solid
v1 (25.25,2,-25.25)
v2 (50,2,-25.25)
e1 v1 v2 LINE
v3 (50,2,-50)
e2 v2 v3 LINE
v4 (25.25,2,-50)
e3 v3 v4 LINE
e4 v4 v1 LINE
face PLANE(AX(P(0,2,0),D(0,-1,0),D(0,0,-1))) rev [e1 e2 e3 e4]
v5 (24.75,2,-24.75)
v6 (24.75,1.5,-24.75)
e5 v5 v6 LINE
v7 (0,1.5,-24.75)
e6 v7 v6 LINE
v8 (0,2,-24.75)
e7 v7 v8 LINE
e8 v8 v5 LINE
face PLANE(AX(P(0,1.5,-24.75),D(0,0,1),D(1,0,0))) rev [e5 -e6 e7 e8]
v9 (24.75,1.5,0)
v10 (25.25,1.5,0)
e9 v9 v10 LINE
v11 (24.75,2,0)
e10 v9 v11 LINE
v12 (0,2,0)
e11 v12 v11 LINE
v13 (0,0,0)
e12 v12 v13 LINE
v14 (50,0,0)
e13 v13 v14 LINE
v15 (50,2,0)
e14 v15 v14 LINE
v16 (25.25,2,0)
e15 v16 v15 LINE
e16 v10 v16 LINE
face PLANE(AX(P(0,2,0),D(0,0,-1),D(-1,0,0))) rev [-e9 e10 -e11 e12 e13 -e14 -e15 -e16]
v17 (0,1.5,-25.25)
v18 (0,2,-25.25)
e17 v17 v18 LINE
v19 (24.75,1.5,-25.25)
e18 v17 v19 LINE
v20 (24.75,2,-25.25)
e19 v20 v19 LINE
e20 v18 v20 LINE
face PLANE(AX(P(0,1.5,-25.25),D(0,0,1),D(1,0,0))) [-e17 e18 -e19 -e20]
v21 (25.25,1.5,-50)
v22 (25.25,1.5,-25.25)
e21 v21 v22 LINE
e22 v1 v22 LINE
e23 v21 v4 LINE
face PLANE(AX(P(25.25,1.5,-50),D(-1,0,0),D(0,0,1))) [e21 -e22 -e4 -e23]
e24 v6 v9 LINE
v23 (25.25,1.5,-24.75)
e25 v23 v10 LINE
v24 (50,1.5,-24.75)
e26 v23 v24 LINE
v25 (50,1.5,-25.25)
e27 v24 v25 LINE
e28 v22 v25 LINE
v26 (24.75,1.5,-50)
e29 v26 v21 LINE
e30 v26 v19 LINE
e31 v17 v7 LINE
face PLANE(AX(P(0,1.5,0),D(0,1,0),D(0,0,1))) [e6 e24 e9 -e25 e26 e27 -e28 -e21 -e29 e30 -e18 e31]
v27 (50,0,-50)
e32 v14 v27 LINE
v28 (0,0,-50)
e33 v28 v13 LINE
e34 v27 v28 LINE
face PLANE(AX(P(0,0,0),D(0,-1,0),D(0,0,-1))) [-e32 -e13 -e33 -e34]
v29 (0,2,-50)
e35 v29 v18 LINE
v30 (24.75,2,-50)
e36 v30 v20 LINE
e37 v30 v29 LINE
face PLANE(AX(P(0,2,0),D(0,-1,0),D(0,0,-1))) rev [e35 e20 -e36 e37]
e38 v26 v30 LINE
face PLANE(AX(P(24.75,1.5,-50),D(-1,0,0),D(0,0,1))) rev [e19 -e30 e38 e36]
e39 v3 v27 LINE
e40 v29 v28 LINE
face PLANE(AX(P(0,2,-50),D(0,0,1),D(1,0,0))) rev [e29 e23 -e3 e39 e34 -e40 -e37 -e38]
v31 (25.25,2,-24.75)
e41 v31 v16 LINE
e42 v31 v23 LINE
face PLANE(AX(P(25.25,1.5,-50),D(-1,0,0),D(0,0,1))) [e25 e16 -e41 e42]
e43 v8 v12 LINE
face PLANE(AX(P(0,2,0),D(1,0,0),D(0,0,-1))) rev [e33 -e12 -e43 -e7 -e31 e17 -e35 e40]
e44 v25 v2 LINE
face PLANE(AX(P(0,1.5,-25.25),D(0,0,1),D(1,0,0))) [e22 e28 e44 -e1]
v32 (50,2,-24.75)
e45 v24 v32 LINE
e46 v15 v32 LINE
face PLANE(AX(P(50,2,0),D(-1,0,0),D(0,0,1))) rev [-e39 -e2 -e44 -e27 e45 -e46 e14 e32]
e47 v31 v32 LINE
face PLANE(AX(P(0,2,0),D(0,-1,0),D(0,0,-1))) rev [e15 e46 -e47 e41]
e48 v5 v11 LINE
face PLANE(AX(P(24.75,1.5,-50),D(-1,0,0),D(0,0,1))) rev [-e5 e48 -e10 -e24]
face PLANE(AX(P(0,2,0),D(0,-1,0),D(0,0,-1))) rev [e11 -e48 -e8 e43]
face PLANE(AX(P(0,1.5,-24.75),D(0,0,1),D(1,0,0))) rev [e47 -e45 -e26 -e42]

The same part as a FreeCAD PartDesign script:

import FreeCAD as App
import Part
import Sketcher
from FreeCAD import Vector

doc = App.newDocument("Part")
body = doc.addObject("PartDesign::Body", "Body")

sketch1 = doc.addObject("Sketcher::SketchObject", "Sketch")
body.addObject(sketch1)
sketch1.AttachmentSupport = (doc.XZ_Plane, [""])
sketch1.MapMode = "FlatFace"
sketch1.addGeometry(Part.LineSegment(Vector(0, -50, 0), Vector(0, 0, 0)), False)
sketch1.addGeometry(Part.LineSegment(Vector(0, 0, 0), Vector(50, 0, 0)), False)
sketch1.addGeometry(Part.LineSegment(Vector(50, 0, 0), Vector(50, -50, 0)), False)
sketch1.addGeometry(Part.LineSegment(Vector(50, -50, 0), Vector(0, -50, 0)), False)
sketch1.addConstraint(Sketcher.Constraint("Coincident", 0, 2, 1, 1))
sketch1.addConstraint(Sketcher.Constraint("Coincident", 1, 2, 2, 1))
sketch1.addConstraint(Sketcher.Constraint("Coincident", 2, 2, 3, 1))
sketch1.addConstraint(Sketcher.Constraint("Coincident", 3, 2, 0, 1))
sketch1.addConstraint(Sketcher.Constraint("Vertical", 0))
sketch1.addConstraint(Sketcher.Constraint("Horizontal", 1))
sketch1.addConstraint(Sketcher.Constraint("Vertical", 2))
sketch1.addConstraint(Sketcher.Constraint("Horizontal", 3))
sketch1.addConstraint(Sketcher.Constraint("Coincident", 0, 2, -1, 1))
sketch1.addConstraint(Sketcher.Constraint("Equal", 3, 0))
sketch1.addConstraint(Sketcher.Constraint("DistanceX", 1, 1, 1, 2, 50.0))
pad1 = doc.addObject("PartDesign::Pad", "Pad")
body.addObject(pad1)
pad1.Profile = sketch1
pad1.Length = 2
pad1.Reversed = True

sketch2 = doc.addObject("Sketcher::SketchObject", "Sketch001")
body.addObject(sketch2)
sketch2.AttachmentSupport = (doc.XZ_Plane, [""])
sketch2.MapMode = "FlatFace"
sketch2.AttachmentOffset = App.Placement(Vector(0, 0, -2), App.Rotation())
sketch2.addGeometry(Part.LineSegment(Vector(24.8, -24.8, 0), Vector(24.8, 0, 0)), False)
sketch2.addGeometry(Part.LineSegment(Vector(24.8, 0, 0), Vector(25.2, 0, 0)), False)
sketch2.addGeometry(Part.LineSegment(Vector(25.2, 0, 0), Vector(25.2, -24.8, 0)), False)
sketch2.addGeometry(Part.LineSegment(Vector(25.2, -24.8, 0), Vector(50, -24.8, 0)), False)
sketch2.addGeometry(Part.LineSegment(Vector(50, -24.8, 0), Vector(50, -25.2, 0)), False)
sketch2.addGeometry(Part.LineSegment(Vector(50, -25.2, 0), Vector(25.2, -25.2, 0)), False)
sketch2.addGeometry(Part.LineSegment(Vector(25.2, -25.2, 0), Vector(25.2, -50, 0)), False)
sketch2.addGeometry(Part.LineSegment(Vector(25.2, -50, 0), Vector(24.8, -50, 0)), False)
sketch2.addGeometry(Part.LineSegment(Vector(24.8, -50, 0), Vector(24.8, -25.2, 0)), False)
sketch2.addGeometry(Part.LineSegment(Vector(24.8, -25.2, 0), Vector(0, -25.2, 0)), False)
sketch2.addGeometry(Part.LineSegment(Vector(0, -25.2, 0), Vector(0, -24.8, 0)), False)
sketch2.addGeometry(Part.LineSegment(Vector(0, -24.8, 0), Vector(24.8, -24.8, 0)), False)
sketch2.addConstraint(Sketcher.Constraint("Coincident", 0, 2, 1, 1))
sketch2.addConstraint(Sketcher.Constraint("Coincident", 1, 2, 2, 1))
sketch2.addConstraint(Sketcher.Constraint("Coincident", 2, 2, 3, 1))
sketch2.addConstraint(Sketcher.Constraint("Coincident", 3, 2, 4, 1))
sketch2.addConstraint(Sketcher.Constraint("Coincident", 4, 2, 5, 1))
sketch2.addConstraint(Sketcher.Constraint("Coincident", 5, 2, 6, 1))
sketch2.addConstraint(Sketcher.Constraint("Coincident", 6, 2, 7, 1))
sketch2.addConstraint(Sketcher.Constraint("Coincident", 7, 2, 8, 1))
sketch2.addConstraint(Sketcher.Constraint("Coincident", 8, 2, 9, 1))
sketch2.addConstraint(Sketcher.Constraint("Coincident", 9, 2, 10, 1))
sketch2.addConstraint(Sketcher.Constraint("Coincident", 10, 2, 11, 1))
sketch2.addConstraint(Sketcher.Constraint("Coincident", 11, 2, 0, 1))
sketch2.addConstraint(Sketcher.Constraint("Vertical", 0))
sketch2.addConstraint(Sketcher.Constraint("Horizontal", 1))
sketch2.addConstraint(Sketcher.Constraint("Vertical", 2))
sketch2.addConstraint(Sketcher.Constraint("Horizontal", 3))
sketch2.addConstraint(Sketcher.Constraint("Vertical", 4))
sketch2.addConstraint(Sketcher.Constraint("Horizontal", 5))
sketch2.addConstraint(Sketcher.Constraint("Vertical", 6))
sketch2.addConstraint(Sketcher.Constraint("Horizontal", 7))
sketch2.addConstraint(Sketcher.Constraint("Vertical", 8))
sketch2.addConstraint(Sketcher.Constraint("Horizontal", 9))
sketch2.addConstraint(Sketcher.Constraint("Vertical", 10))
sketch2.addConstraint(Sketcher.Constraint("Horizontal", 11))
sketch2.addConstraint(Sketcher.Constraint("PointOnObject", 0, 2, -1))
sketch2.addConstraint(Sketcher.Constraint("PointOnObject", 9, 2, -2))
sketch2.addConstraint(Sketcher.Constraint("Horizontal", 5, 2, 8, 2))
sketch2.addConstraint(Sketcher.Constraint("Horizontal", 3, 2, 10, 2))
sketch2.addConstraint(Sketcher.Constraint("Vertical", 2, 2, 5, 2))
sketch2.addConstraint(Sketcher.Constraint("Vertical", 0, 2, 7, 2))
sketch2.addConstraint(Sketcher.Constraint("Equal", 5, 9))
sketch2.addConstraint(Sketcher.Constraint("Equal", 11, 0))
sketch2.addConstraint(Sketcher.Constraint("Equal", 7, 4))
sketch2.addConstraint(Sketcher.Constraint("Equal", 2, 6))
sketch2.addConstraint(Sketcher.Constraint("DistanceX", 1, 1, 1, 2, 0.5))
sketch2.addConstraint(Sketcher.Constraint("DistanceX", -1, 1, 3, 2, 50.0))
pocket1 = doc.addObject("PartDesign::Pocket", "Pocket")
body.addObject(pocket1)
pocket1.Profile = sketch2
pocket1.Length = 0.5
pocket1.Reversed = True

doc.recompute()
